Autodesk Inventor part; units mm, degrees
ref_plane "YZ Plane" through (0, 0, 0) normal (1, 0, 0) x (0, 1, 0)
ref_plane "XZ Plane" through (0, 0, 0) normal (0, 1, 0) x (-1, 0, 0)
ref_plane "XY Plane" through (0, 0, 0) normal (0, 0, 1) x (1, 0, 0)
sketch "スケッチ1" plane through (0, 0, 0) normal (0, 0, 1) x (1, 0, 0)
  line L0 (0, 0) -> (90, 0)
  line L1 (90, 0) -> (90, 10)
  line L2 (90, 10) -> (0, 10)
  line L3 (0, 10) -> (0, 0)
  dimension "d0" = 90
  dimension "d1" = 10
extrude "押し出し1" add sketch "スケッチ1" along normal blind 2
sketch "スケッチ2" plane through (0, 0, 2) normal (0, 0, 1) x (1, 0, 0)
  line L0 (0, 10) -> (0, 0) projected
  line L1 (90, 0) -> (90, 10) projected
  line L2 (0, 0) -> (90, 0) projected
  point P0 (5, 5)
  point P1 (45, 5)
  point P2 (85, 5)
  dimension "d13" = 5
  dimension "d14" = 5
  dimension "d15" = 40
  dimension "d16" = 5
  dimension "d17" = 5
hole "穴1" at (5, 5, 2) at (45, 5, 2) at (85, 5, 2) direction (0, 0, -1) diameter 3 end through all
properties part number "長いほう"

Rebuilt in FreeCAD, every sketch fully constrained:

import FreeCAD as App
import Part
import Sketcher
from FreeCAD import Vector
Q = App.Units.Quantity

doc = App.newDocument("Part")
body = doc.addObject("PartDesign::Body", "Body")

sketch1 = doc.addObject("Sketcher::SketchObject", "Sketch")
body.addObject(sketch1)
sketch1.AttachmentSupport = (doc.XY_Plane, [""])
sketch1.MapMode = "FlatFace"
sketch1.addGeometry(Part.LineSegment(Vector(0, 10, 0), Vector(0, 0, 0)), False)
sketch1.addGeometry(Part.LineSegment(Vector(0, 0, 0), Vector(90, 0, 0)), False)
sketch1.addGeometry(Part.LineSegment(Vector(90, 0, 0), Vector(90, 10, 0)), False)
sketch1.addGeometry(Part.LineSegment(Vector(90, 10, 0), Vector(0, 10, 0)), False)
sketch1.addConstraint(Sketcher.Constraint("Coincident", 0, 2, 1, 1))
sketch1.addConstraint(Sketcher.Constraint("Coincident", 1, 2, 2, 1))
sketch1.addConstraint(Sketcher.Constraint("Coincident", 2, 2, 3, 1))
sketch1.addConstraint(Sketcher.Constraint("Coincident", 3, 2, 0, 1))
sketch1.addConstraint(Sketcher.Constraint("Vertical", 0))
sketch1.addConstraint(Sketcher.Constraint("Horizontal", 1))
sketch1.addConstraint(Sketcher.Constraint("Vertical", 2))
sketch1.addConstraint(Sketcher.Constraint("Horizontal", 3))
sketch1.addConstraint(Sketcher.Constraint("Coincident", 0, 2, -1, 1))
sketch1.addConstraint(Sketcher.Constraint("DistanceX", 1, 1, 1, 2, Q("90 mm")))
sketch1.addConstraint(Sketcher.Constraint("DistanceY", 0, 2, 0, 1, Q("10 mm")))
pad1 = doc.addObject("PartDesign::Pad", "Pad")
body.addObject(pad1)
pad1.Profile = sketch1
pad1.Length = 2

sketch2 = doc.addObject("Sketcher::SketchObject", "Sketch001")
body.addObject(sketch2)
sketch2.AttachmentSupport = (doc.XY_Plane, [""])
sketch2.MapMode = "FlatFace"
sketch2.AttachmentOffset = App.Placement(Vector(0, 0, 2), App.Rotation())
sketch2.addGeometry(Part.Circle(Vector(5, 5, 0), Vector(0, 0, 1), 1.5), False)
sketch2.addGeometry(Part.Circle(Vector(45, 5, 0), Vector(0, 0, 1), 1.5), False)
sketch2.addGeometry(Part.Circle(Vector(85, 5, 0), Vector(0, 0, 1), 1.5), False)
sketch2.addConstraint(Sketcher.Constraint("Equal", 0, 1))
sketch2.addConstraint(Sketcher.Constraint("Equal", 1, 2))
sketch2.addConstraint(Sketcher.Constraint("Horizontal", 0, 3, 1, 3))
sketch2.addConstraint(Sketcher.Constraint("Horizontal", 1, 3, 2, 3))
sketch2.addConstraint(Sketcher.Constraint("Diameter", 0, Q("3 mm")))
sketch2.addConstraint(Sketcher.Constraint("DistanceX", -1, 1, 0, 3, Q("5 mm")))
sketch2.addConstraint(Sketcher.Constraint("DistanceY", -1, 1, 0, 3, Q("5 mm")))
sketch2.addConstraint(Sketcher.Constraint("DistanceX", -1, 1, 1, 3, Q("45 mm")))
sketch2.addConstraint(Sketcher.Constraint("DistanceX", -1, 1, 2, 3, Q("85 mm")))
doc.recompute()
hole = doc.addObject("PartDesign::Hole", "Hole")
body.addObject(hole)
hole.Profile = sketch2
hole.ThreadType = "None"
hole.Diameter = 3
hole.DepthType = "ThroughAll"

doc.recompute()
